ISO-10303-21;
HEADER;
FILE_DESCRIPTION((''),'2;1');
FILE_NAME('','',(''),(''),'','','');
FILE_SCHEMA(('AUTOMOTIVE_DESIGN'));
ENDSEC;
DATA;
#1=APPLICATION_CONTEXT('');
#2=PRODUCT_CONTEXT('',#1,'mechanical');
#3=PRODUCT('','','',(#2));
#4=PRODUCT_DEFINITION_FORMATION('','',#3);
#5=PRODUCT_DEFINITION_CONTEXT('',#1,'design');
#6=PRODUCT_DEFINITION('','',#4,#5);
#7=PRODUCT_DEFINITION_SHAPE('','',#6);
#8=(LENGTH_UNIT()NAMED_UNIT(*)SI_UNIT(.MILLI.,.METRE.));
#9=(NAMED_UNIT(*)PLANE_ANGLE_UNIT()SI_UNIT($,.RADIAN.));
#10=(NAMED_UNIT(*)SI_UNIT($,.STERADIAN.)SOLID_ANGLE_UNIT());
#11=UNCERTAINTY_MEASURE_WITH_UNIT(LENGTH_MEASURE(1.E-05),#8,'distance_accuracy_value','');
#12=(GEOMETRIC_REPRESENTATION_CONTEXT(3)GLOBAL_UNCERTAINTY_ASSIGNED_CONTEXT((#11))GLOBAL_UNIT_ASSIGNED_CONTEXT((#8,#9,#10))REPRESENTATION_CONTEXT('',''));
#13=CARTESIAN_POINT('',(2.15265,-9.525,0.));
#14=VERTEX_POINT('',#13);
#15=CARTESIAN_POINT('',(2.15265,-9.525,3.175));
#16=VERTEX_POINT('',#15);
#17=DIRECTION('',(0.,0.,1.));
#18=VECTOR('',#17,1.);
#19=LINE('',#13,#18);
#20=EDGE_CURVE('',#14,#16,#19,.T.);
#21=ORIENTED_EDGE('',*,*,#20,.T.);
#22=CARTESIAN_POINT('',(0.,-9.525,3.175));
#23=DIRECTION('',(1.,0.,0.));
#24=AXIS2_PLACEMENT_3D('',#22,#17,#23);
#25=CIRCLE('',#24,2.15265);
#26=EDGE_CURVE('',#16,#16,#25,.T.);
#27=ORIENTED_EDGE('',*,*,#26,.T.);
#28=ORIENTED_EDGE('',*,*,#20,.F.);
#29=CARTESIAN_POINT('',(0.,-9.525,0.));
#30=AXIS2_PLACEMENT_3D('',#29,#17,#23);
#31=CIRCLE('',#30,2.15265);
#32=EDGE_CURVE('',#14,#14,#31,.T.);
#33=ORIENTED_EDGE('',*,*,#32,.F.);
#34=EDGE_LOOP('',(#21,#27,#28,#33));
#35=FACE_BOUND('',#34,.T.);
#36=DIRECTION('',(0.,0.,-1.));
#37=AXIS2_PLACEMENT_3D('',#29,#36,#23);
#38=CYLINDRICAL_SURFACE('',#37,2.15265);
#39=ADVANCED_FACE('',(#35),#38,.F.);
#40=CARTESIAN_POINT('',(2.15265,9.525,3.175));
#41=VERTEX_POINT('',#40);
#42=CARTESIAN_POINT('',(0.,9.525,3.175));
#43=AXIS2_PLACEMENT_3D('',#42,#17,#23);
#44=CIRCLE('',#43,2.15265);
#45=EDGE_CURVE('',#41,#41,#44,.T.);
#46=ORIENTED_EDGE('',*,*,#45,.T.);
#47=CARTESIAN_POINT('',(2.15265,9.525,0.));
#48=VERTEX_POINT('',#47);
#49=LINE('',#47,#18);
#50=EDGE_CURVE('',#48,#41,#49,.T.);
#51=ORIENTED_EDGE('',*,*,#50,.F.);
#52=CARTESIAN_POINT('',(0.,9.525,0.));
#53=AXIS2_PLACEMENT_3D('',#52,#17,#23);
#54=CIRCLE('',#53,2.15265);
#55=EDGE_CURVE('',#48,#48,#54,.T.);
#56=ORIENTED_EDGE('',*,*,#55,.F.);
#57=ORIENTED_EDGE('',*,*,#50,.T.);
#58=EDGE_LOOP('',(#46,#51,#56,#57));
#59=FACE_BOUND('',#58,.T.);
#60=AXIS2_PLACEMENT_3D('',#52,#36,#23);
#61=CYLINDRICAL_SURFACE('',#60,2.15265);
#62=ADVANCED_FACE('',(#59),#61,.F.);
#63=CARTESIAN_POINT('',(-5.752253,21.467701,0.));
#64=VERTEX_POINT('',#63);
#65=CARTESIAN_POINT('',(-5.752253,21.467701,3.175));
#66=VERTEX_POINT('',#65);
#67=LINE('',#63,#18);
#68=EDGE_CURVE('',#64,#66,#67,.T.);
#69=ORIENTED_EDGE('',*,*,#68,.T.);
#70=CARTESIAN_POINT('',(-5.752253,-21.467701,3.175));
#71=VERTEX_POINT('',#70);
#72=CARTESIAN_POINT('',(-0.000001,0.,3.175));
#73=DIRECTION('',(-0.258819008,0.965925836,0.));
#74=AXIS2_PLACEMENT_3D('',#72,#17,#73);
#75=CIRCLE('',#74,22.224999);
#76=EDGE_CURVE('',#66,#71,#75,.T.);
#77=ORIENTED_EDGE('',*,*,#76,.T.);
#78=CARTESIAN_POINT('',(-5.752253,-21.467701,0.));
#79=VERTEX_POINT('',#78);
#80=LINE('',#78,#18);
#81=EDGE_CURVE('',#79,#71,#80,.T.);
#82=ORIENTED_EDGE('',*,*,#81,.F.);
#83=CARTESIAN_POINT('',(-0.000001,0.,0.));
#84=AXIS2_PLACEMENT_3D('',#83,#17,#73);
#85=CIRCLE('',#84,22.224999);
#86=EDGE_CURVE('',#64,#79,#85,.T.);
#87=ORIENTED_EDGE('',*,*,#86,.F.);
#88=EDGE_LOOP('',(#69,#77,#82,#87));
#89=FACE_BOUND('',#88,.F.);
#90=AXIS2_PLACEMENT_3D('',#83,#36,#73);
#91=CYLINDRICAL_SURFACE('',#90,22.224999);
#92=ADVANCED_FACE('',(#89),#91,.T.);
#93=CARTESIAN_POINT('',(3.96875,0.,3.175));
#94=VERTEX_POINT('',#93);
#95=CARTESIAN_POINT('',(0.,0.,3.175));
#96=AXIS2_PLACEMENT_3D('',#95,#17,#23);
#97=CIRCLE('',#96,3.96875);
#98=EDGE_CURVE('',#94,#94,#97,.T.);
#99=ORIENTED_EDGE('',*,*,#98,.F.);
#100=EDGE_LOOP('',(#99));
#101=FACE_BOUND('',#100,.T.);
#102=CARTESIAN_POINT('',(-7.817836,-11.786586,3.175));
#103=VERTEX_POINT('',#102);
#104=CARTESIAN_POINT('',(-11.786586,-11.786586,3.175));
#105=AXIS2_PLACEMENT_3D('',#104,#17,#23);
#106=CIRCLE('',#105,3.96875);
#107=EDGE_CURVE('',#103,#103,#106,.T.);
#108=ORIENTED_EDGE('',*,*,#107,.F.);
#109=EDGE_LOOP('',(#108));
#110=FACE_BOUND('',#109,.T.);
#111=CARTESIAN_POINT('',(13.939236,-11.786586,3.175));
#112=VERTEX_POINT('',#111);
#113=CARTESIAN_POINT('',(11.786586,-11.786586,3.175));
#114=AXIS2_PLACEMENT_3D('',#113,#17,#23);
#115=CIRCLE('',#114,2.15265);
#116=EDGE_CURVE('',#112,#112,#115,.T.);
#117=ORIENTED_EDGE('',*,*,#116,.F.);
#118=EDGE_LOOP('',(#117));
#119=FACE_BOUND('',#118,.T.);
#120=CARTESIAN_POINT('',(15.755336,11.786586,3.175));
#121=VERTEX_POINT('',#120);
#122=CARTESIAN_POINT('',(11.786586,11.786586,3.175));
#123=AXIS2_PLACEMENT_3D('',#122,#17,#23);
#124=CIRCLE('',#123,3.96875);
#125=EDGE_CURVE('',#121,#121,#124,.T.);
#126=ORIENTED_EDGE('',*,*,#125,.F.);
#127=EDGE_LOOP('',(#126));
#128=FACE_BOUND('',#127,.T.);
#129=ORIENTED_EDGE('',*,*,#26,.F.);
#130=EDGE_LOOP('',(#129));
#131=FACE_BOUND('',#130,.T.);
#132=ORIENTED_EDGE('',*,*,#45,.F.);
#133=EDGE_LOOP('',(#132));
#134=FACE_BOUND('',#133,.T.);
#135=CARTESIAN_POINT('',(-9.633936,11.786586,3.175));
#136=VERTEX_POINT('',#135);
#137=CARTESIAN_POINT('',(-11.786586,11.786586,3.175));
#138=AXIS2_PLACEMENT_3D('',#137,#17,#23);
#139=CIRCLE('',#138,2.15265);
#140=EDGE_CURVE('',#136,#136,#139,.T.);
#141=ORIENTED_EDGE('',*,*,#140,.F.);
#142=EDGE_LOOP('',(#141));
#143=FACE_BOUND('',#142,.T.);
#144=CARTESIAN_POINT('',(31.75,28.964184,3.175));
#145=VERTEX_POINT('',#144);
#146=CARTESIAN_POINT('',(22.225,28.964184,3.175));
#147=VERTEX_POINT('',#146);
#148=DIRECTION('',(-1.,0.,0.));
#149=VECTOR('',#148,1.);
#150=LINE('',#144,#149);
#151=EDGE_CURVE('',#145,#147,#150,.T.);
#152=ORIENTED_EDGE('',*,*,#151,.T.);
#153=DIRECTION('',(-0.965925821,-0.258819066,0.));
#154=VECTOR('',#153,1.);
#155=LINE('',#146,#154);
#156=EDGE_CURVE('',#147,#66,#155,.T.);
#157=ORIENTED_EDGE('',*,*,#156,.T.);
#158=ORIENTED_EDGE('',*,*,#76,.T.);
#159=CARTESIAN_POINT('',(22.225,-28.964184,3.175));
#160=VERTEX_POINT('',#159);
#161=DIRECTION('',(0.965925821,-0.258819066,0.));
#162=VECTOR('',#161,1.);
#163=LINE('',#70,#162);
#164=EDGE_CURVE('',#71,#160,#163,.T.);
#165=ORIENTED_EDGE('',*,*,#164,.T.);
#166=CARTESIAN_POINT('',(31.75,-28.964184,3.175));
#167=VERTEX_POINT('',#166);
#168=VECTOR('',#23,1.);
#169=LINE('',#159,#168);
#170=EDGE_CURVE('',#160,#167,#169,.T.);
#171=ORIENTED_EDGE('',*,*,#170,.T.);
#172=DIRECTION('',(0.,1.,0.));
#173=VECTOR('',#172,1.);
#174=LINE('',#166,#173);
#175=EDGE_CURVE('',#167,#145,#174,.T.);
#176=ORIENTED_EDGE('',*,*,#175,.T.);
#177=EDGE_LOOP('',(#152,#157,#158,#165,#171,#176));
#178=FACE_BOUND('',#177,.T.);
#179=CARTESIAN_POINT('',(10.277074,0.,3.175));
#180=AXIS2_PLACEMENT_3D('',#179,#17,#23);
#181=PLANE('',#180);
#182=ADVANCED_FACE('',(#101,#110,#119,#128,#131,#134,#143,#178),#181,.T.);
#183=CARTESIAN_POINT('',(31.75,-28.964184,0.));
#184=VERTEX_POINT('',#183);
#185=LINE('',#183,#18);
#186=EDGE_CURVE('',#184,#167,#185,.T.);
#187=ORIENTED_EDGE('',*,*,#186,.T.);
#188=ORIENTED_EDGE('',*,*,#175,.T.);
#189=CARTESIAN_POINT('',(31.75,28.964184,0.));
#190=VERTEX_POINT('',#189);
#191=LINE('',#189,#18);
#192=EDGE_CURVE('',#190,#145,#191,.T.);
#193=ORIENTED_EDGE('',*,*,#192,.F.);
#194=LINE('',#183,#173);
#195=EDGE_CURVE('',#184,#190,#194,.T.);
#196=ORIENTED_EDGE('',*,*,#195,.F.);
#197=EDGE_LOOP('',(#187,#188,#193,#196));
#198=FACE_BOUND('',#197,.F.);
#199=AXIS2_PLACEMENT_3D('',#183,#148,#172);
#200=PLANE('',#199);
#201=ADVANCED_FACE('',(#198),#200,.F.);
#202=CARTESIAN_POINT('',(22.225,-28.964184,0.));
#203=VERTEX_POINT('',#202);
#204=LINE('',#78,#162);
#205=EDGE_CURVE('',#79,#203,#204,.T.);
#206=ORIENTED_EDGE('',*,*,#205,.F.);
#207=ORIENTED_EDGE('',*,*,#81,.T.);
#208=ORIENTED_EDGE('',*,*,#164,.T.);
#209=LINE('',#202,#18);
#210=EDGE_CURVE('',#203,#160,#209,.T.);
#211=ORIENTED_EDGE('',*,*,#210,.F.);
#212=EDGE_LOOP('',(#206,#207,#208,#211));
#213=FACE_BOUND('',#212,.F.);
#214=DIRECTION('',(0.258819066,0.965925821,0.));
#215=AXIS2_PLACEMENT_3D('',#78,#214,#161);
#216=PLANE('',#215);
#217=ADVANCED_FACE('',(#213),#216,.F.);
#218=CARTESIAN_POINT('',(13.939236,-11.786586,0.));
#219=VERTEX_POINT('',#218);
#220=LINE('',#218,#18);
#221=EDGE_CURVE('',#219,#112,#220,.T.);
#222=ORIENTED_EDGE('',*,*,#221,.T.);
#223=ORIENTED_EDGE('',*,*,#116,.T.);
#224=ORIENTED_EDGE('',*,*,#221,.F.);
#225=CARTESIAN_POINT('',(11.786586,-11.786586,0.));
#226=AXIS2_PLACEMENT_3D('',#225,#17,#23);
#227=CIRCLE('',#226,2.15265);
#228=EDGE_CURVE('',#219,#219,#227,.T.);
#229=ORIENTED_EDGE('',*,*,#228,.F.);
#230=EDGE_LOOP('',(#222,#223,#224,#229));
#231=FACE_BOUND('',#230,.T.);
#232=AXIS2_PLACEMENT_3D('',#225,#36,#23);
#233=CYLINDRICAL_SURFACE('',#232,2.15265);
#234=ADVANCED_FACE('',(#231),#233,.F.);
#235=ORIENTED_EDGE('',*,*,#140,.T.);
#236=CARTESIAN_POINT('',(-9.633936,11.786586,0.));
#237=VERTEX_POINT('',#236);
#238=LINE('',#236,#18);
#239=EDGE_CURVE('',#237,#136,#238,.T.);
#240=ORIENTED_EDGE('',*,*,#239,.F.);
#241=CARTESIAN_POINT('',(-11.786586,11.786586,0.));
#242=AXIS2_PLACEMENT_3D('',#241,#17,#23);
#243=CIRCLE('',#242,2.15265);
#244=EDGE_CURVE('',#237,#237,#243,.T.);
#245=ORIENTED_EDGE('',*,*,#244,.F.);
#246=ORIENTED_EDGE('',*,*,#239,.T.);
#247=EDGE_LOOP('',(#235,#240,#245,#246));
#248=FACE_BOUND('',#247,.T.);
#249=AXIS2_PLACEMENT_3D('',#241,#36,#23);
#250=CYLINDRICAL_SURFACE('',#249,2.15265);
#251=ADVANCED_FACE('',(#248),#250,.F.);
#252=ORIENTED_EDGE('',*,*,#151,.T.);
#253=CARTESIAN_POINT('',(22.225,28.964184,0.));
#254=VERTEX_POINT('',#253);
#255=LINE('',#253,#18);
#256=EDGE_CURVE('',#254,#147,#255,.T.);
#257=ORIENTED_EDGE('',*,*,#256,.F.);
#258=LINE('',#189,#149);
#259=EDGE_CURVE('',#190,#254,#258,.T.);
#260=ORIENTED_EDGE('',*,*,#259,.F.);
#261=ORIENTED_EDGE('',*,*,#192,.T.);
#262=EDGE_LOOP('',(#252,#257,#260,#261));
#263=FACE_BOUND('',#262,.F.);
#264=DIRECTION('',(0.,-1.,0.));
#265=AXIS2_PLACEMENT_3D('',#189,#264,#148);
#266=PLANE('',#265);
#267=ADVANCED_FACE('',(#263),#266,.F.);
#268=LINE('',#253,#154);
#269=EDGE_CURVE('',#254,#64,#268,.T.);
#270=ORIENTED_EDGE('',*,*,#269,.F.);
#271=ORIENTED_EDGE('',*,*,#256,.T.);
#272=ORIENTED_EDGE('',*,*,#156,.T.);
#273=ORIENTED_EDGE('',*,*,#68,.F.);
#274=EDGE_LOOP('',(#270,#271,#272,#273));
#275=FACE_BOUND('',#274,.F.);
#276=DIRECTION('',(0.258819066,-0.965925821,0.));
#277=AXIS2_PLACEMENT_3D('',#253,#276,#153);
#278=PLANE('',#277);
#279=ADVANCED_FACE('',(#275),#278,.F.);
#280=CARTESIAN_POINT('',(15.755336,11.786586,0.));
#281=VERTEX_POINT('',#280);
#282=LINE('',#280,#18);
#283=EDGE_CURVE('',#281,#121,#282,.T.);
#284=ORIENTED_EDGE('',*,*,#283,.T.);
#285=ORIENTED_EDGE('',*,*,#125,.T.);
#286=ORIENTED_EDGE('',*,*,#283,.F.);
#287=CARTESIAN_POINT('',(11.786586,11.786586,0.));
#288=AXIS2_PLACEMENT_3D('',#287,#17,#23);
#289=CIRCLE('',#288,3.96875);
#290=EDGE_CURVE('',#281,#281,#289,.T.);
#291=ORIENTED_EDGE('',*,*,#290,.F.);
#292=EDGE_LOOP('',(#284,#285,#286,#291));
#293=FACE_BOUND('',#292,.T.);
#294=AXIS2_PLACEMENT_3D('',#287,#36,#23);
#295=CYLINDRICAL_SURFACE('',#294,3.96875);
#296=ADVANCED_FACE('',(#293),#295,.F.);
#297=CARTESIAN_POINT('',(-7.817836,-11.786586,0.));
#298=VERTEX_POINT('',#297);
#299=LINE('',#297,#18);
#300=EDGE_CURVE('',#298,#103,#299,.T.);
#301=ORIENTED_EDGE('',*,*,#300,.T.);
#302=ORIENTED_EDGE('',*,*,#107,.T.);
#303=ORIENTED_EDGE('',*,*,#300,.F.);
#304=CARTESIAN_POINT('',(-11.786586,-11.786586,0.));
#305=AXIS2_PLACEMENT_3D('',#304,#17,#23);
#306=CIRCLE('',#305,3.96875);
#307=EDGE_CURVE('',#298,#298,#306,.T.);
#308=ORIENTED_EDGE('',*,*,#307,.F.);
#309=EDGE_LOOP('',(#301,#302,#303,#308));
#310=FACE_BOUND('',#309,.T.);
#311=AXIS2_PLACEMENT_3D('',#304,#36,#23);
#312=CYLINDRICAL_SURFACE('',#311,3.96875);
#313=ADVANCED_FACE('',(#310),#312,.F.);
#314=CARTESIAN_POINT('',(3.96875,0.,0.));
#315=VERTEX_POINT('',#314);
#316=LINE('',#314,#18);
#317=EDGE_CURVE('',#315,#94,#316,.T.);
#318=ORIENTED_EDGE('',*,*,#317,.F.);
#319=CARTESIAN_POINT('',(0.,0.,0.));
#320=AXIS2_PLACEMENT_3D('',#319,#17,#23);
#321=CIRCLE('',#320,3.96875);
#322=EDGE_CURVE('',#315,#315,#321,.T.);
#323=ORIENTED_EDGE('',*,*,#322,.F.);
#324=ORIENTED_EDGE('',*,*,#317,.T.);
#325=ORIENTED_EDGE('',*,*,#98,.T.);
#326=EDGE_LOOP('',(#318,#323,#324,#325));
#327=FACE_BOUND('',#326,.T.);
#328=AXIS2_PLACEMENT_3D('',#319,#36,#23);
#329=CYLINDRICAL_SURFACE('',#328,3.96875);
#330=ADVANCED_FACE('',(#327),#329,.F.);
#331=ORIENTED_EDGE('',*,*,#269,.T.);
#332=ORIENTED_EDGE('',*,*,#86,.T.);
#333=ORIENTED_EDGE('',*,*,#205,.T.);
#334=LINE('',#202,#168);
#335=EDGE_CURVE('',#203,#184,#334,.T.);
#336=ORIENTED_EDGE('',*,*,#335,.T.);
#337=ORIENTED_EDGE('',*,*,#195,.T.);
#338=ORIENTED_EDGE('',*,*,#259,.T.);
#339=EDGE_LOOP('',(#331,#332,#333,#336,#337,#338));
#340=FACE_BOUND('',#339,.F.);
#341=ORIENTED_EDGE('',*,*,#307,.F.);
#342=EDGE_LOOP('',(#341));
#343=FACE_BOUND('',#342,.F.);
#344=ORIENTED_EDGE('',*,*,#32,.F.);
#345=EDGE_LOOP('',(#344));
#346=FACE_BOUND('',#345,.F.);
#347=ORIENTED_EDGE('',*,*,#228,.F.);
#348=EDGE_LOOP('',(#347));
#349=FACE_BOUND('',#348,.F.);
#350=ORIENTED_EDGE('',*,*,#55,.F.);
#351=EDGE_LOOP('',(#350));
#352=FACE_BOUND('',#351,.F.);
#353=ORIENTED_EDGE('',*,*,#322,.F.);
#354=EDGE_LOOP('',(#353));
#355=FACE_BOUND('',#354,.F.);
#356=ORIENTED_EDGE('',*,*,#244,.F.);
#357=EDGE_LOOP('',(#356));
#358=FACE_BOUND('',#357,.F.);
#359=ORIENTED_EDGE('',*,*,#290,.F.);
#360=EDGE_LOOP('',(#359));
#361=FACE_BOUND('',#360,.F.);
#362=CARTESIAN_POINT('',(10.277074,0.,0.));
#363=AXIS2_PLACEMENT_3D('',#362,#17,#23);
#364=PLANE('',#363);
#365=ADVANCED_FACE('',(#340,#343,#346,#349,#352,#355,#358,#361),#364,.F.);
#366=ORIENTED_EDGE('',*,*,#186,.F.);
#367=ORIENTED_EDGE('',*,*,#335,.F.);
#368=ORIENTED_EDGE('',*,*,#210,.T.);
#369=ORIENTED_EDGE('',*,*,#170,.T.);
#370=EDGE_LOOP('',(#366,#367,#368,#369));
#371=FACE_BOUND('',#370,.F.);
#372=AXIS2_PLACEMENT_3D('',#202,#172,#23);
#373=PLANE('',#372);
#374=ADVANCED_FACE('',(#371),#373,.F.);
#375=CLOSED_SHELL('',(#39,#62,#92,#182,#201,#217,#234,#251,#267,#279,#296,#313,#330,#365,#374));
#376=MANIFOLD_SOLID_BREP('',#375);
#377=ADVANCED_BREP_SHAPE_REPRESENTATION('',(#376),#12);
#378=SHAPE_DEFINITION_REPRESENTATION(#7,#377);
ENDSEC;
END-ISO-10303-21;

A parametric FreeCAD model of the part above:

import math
import FreeCAD as App
import Part
import Sketcher
Q = App.Units.Quantity

doc = App.newDocument("Part")
body = doc.addObject("PartDesign::Body", "Body")

# Sketch on XY plane
sketch1 = body.newObject("Sketcher::SketchObject", "Sketch")
sketch1.AttachmentSupport = (doc.getObject("XY_Plane"), [""])
sketch1.MapMode = "FlatFace"
sketch1.addGeometry(Part.LineSegment(App.Vector(31.8, 29, 0), App.Vector(22.2, 29, 0)), False)
sketch1.addGeometry(Part.LineSegment(App.Vector(22.2, 29, 0), App.Vector(-5.8, 21.5, 0)), False)
sketch1.addGeometry(Part.ArcOfCircle(Part.Circle(App.Vector(0, 0, 0), App.Vector(0, 0, 1), 22.2), math.radians(105), math.radians(255)), False)
sketch1.addGeometry(Part.LineSegment(App.Vector(-5.8, -21.5, 0), App.Vector(22.2, -29, 0)), False)
sketch1.addGeometry(Part.LineSegment(App.Vector(22.2, -29, 0), App.Vector(31.8, -29, 0)), False)
sketch1.addGeometry(Part.LineSegment(App.Vector(31.8, -29, 0), App.Vector(31.8, 29, 0)), False)
sketch1.addGeometry(Part.Circle(App.Vector(-11.8, -11.8, 0), App.Vector(0, 0, 1), 4), False)
sketch1.addGeometry(Part.Circle(App.Vector(0, -9.5, 0), App.Vector(0, 0, 1), 2.2), False)
sketch1.addGeometry(Part.Circle(App.Vector(11.8, -11.8, 0), App.Vector(0, 0, 1), 2.2), False)
sketch1.addGeometry(Part.Circle(App.Vector(-11.8, 11.8, 0), App.Vector(0, 0, 1), 2.2), False)
sketch1.addGeometry(Part.Circle(App.Vector(0, 0, 0), App.Vector(0, 0, 1), 4), False)
sketch1.addGeometry(Part.Circle(App.Vector(0, 9.5, 0), App.Vector(0, 0, 1), 2.2), False)
sketch1.addGeometry(Part.Circle(App.Vector(11.8, 11.8, 0), App.Vector(0, 0, 1), 4), False)
sketch1.addConstraint(Sketcher.Constraint("Coincident", 0, 2, 1, 1))
sketch1.addConstraint(Sketcher.Constraint("Tangent", 1, 2, 2, 1))
sketch1.addConstraint(Sketcher.Constraint("Tangent", 2, 2, 3, 1))
sketch1.addConstraint(Sketcher.Constraint("Coincident", 3, 2, 4, 1))
sketch1.addConstraint(Sketcher.Constraint("Coincident", 4, 2, 5, 1))
sketch1.addConstraint(Sketcher.Constraint("Coincident", 5, 2, 0, 1))
sketch1.addConstraint(Sketcher.Constraint("Horizontal", 0))
sketch1.addConstraint(Sketcher.Constraint("Horizontal", 4))
sketch1.addConstraint(Sketcher.Constraint("Vertical", 5))
sketch1.addConstraint(Sketcher.Constraint("Coincident", 2, 3, -1, 1))
sketch1.addConstraint(Sketcher.Constraint("Coincident", 10, 3, -1, 1))
sketch1.addConstraint(Sketcher.Constraint("Equal", 7, 8))
sketch1.addConstraint(Sketcher.Constraint("Equal", 8, 9))
sketch1.addConstraint(Sketcher.Constraint("Equal", 6, 10))
sketch1.addConstraint(Sketcher.Constraint("Equal", 9, 11))
sketch1.addConstraint(Sketcher.Constraint("Equal", 10, 12))
sketch1.addConstraint(Sketcher.Constraint("Symmetric", 8, 3, 9, 3, -1, 1))
sketch1.addConstraint(Sketcher.Constraint("Symmetric", 7, 3, 11, 3, -1, 1))
sketch1.addConstraint(Sketcher.Constraint("Symmetric", 6, 3, 12, 3, -1, 1))
sketch1.addConstraint(Sketcher.Constraint("Symmetric", 6, 3, 8, 3, -2))
sketch1.addConstraint(Sketcher.Constraint("Symmetric", 0, 2, 3, 2, -1))
sketch1.addConstraint(Sketcher.Constraint("PointOnObject", 7, 3, -2))
sketch1.addConstraint(Sketcher.Constraint("Diameter", 6, Q("0.3125 in")))
sketch1.addConstraint(Sketcher.Constraint("Angle", 1, Q("-164.999999 deg")))
sketch1.addConstraint(Sketcher.Constraint("Radius", 2, Q("0.875 in")))
sketch1.addConstraint(Sketcher.Constraint("Diameter", 7, Q("0.1695 in")))
sketch1.addConstraint(Sketcher.Constraint("DistanceX", 0, 2, 0, 1, Q("0.375 in")))
sketch1.addConstraint(Sketcher.Constraint("DistanceX", -1, 1, 4, 2, Q("1.25 in")))
sketch1.addConstraint(Sketcher.Constraint("DistanceY", 7, 3, 11, 3, Q("0.75 in")))
sketch1.addConstraint(Sketcher.Constraint("DistanceX", 6, 3, 8, 3, Q("23.573172 mm")))
sketch1.addConstraint(Sketcher.Constraint("DistanceY", 6, 3, 9, 3, Q("23.573172 mm")))
pad1 = body.newObject("PartDesign::Pad", "Pad")
pad1.Profile = sketch1
pad1.Length = Q("0.125 in")

doc.recompute()
